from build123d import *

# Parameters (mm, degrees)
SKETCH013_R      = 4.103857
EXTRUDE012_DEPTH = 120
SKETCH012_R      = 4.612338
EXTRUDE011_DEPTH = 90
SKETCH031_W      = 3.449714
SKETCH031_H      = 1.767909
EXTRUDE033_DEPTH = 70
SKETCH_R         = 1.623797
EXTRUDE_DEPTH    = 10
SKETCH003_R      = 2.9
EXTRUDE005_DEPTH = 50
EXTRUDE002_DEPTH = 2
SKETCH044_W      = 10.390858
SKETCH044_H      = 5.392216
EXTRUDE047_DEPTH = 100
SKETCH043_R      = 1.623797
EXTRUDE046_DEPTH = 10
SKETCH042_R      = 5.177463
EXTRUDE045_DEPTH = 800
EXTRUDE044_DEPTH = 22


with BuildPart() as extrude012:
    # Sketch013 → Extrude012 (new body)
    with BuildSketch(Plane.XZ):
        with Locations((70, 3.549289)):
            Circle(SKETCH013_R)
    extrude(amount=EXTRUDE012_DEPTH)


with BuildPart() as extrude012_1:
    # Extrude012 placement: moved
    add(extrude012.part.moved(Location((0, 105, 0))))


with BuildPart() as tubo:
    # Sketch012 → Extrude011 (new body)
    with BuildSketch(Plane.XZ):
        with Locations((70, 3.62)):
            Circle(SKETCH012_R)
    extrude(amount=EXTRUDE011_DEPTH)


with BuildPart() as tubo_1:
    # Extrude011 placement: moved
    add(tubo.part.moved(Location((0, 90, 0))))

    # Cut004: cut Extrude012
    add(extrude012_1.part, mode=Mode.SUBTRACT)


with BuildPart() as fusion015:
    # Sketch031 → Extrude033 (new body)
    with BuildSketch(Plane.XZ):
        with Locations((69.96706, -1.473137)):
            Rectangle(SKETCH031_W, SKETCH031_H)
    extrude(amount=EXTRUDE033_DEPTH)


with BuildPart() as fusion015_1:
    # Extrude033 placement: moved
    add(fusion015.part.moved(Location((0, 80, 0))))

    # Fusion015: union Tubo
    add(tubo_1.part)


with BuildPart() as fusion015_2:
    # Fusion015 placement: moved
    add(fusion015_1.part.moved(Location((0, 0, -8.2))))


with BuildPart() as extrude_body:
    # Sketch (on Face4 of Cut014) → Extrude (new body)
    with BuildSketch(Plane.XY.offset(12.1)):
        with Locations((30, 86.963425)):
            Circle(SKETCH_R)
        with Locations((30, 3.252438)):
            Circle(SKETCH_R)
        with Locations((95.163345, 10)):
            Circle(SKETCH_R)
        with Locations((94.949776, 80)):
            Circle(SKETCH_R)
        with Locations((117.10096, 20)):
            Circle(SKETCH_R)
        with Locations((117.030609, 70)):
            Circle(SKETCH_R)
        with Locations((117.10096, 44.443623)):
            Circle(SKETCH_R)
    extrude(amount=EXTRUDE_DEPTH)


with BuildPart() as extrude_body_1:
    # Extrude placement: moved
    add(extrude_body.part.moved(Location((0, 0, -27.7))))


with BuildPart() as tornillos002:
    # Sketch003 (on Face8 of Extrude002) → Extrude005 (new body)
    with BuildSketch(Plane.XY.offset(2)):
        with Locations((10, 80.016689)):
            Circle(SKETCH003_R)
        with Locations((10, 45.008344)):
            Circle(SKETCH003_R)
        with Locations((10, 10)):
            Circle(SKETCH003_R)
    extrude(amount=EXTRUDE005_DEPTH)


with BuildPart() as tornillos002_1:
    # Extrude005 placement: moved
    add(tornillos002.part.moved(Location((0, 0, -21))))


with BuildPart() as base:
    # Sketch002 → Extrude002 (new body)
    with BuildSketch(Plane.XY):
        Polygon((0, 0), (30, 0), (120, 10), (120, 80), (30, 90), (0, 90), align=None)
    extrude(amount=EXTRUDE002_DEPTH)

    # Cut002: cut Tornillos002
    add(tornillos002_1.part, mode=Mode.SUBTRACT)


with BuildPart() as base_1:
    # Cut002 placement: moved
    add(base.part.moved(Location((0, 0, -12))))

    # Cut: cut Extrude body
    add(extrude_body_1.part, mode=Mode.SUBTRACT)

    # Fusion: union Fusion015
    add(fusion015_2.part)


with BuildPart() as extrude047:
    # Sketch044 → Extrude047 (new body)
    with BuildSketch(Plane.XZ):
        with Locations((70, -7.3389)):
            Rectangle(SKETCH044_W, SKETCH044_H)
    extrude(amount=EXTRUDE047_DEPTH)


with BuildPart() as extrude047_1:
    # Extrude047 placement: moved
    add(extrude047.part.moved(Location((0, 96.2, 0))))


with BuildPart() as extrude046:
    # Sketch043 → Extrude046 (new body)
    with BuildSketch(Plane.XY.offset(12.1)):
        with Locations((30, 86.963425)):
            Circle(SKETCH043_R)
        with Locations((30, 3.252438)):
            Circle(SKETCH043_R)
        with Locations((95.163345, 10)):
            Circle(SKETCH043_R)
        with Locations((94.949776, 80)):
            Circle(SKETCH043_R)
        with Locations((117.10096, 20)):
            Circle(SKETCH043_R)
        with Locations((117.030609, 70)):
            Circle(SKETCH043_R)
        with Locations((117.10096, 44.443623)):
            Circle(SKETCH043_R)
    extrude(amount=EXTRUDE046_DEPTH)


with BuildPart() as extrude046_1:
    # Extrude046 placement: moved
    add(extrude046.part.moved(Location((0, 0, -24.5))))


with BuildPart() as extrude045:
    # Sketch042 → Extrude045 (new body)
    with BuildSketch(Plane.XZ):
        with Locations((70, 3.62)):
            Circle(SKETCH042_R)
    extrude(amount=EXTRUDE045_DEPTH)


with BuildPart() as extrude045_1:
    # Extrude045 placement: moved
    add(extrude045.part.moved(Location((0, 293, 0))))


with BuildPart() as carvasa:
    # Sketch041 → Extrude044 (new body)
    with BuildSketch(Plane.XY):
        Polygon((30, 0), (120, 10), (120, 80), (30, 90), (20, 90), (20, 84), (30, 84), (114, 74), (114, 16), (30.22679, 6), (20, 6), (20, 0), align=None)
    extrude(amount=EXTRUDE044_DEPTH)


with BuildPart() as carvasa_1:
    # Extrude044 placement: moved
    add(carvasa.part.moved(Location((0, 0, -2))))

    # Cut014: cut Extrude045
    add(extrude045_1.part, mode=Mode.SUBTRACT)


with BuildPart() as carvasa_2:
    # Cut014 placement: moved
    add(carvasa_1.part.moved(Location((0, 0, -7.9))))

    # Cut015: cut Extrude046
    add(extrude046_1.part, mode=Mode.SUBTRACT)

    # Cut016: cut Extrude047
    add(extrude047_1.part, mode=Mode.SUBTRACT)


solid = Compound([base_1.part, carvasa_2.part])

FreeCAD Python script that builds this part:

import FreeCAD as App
import Part
import Sketcher
from FreeCAD import Vector
Q = App.Units.Quantity


def add_polygon(sketch, points):
    """Adds a closed chain of lines whose ends are joined by coincident constraints."""
    first, n = sketch.GeometryCount, len(points)
    for a, b in zip(points, points[1:] + points[:1]):
        sketch.addGeometry(Part.LineSegment(App.Vector(*a, 0), App.Vector(*b, 0)), False)
    for i in range(n):
        sketch.addConstraint(Sketcher.Constraint("Coincident", first + i, 2, first + (i + 1) % n, 1))

doc = App.newDocument("Part")
params = doc.addObject("Spreadsheet::Sheet", "Params")
for row, (alias, value) in enumerate([
    ("pad1_length", "120 mm"),
    ("pad2_length", "90 mm"),
    ("pad3_length", "70 mm"),
    ("pad4_length", "10 mm"),
    ("sketch5_diameter", "5.8 mm"),
    ("pad5_length", "50 mm"),
    ("sketch6_width", "30 mm"),
    ("sketch6_height", "70 mm"),
    ("sketch6_height2", "90 mm"),
    ("pad6_length", "2 mm"),
    ("pad7_length", "100 mm"),
    ("pad8_length", "10 mm"),
    ("pad9_length", "800 mm"),
    ("sketch10_width", "10 mm"),
    ("sketch10_height", "70 mm"),
    ("sketch10_height2", "6 mm"),
    ("sketch10_height3", "58 mm"),
    ("pad10_length", "22 mm"),
], start=1):
    params.set(f"A{row}", alias)
    params.set(f"B{row}", "=" + value)
    params.setAlias(f"B{row}", alias)

body = doc.addObject("PartDesign::Body", "Body")

# Sketch on XZ plane
sketch1 = body.newObject("Sketcher::SketchObject", "Sketch")
sketch1.AttachmentSupport = (doc.getObject("XZ_Plane"), [""])
sketch1.MapMode = "FlatFace"
sketch1.addGeometry(Part.Circle(Vector(70, 3.549289, 0), Vector(0, 0, 1), 4.103857), False)
sketch1.addConstraint([
    Sketcher.Constraint("DistanceX", -1, 1, 0, 3, Q("70 mm")),
    Sketcher.Constraint("Diameter", 0, Q("8.207714 mm")),
    Sketcher.Constraint("DistanceY", -1, 1, 0, 3, Q("3.549289 mm")),
])
pad1 = body.newObject("PartDesign::Pad", "Pad")
pad1.Profile = sketch1
pad1.setExpression("Length", "Params.pad1_length")
body2 = doc.addObject("PartDesign::Body", "Body001")
doc.recompute()

body.Placement = App.Placement(Vector(0, 105, 0), App.Rotation(Vector(0, 0, 1), 0))
boolean = body2.newObject("PartDesign::Boolean", "Boolean")
boolean.Type = "Fuse"
boolean.addObjects([body])
body3 = doc.addObject("PartDesign::Body", "Body002")

# Sketch on XZ plane
sketch2 = body3.newObject("Sketcher::SketchObject", "Sketch001")
sketch2.AttachmentSupport = (doc.getObject("XZ_Plane002"), [""])
sketch2.MapMode = "FlatFace"
sketch2.addGeometry(Part.Circle(Vector(70, 3.62, 0), Vector(0, 0, 1), 4.612338), False)
sketch2.addConstraint([
    Sketcher.Constraint("DistanceX", -1, 1, 0, 3, Q("70 mm")),
    Sketcher.Constraint("DistanceY", -1, 1, 0, 3, Q("3.62 mm")),
    Sketcher.Constraint("Diameter", 0, Q("9.224676 mm")),
])
pad2 = body3.newObject("PartDesign::Pad", "Pad001")
pad2.Profile = sketch2
pad2.setExpression("Length", "Params.pad2_length")
body4 = doc.addObject("PartDesign::Body", "Body003")
doc.recompute()

body3.Placement = App.Placement(Vector(0, 90, 0), App.Rotation(Vector(0, 0, 1), 0))
boolean2 = body4.newObject("PartDesign::Boolean", "Boolean001")
boolean2.Type = "Fuse"
boolean2.addObjects([body3])
doc.recompute()

boolean3 = body4.newObject("PartDesign::Boolean", "Boolean002")
boolean3.Type = "Cut"
boolean3.addObjects([body2])
body5 = doc.addObject("PartDesign::Body", "Body004")

# Sketch on XZ plane
sketch3 = body5.newObject("Sketcher::SketchObject", "Sketch002")
sketch3.AttachmentSupport = (doc.getObject("XZ_Plane004"), [""])
sketch3.MapMode = "FlatFace"
add_polygon(sketch3, [(68.242203, -0.589183), (68.242203, -2.357092), (71.691917, -2.357092), (71.691917, -0.589183)])  # lines 0-3
sketch3.addConstraint([
    Sketcher.Constraint("Vertical", 0),
    Sketcher.Constraint("Horizontal", 1),
    Sketcher.Constraint("Vertical", 2),
    Sketcher.Constraint("Horizontal", 3),
    Sketcher.Constraint("DistanceY", 0, 2, 0, 1, Q("1.767909 mm")),
    Sketcher.Constraint("DistanceX", 1, 1, 1, 2, Q("3.449714 mm")),
    Sketcher.Constraint("DistanceY", 0, 2, -1, 1, Q("2.357092 mm")),
    Sketcher.Constraint("DistanceX", -1, 1, 0, 2, Q("68.242203 mm")),
])
pad3 = body5.newObject("PartDesign::Pad", "Pad002")
pad3.Profile = sketch3
pad3.setExpression("Length", "Params.pad3_length")
body6 = doc.addObject("PartDesign::Body", "Body005")
doc.recompute()

body5.Placement = App.Placement(Vector(0, 80, 0), App.Rotation(Vector(0, 0, 1), 0))
boolean4 = body6.newObject("PartDesign::Boolean", "Boolean003")
boolean4.Type = "Fuse"
boolean4.addObjects([body5])
doc.recompute()

boolean5 = body6.newObject("PartDesign::Boolean", "Boolean004")
boolean5.Type = "Fuse"
boolean5.addObjects([body4])
body7 = doc.addObject("PartDesign::Body", "Body006")
doc.recompute()

body6.Placement = App.Placement(Vector(0, 0, -8.2), App.Rotation(Vector(0, 0, 1), 0))
boolean6 = body7.newObject("PartDesign::Boolean", "Boolean005")
boolean6.Type = "Fuse"
boolean6.addObjects([body6])
body8 = doc.addObject("PartDesign::Body", "Body007")
body8.AllowCompound = True

# Sketch on XY plane
sketch4 = body8.newObject("Sketcher::SketchObject", "Sketch003")
sketch4.AttachmentSupport = (doc.getObject("XY_Plane007"), [""])
sketch4.MapMode = "FlatFace"
sketch4.AttachmentOffset = App.Placement(Vector(0, 0, 12.1), App.Rotation())
sketch4.addGeometry([
    Part.Circle(Vector(30, 86.963425, 0), Vector(0, 0, 1), 1.623797),  # 0
    Part.Circle(Vector(30, 3.252438, 0), Vector(0, 0, 1), 1.623797),  # 1
    Part.Circle(Vector(95.163345, 10, 0), Vector(0, 0, 1), 1.623797),  # 2
    Part.Circle(Vector(94.949776, 80, 0), Vector(0, 0, 1), 1.623797),  # 3
    Part.Circle(Vector(117.10096, 20, 0), Vector(0, 0, 1), 1.623797),  # 4
    Part.Circle(Vector(117.030609, 70, 0), Vector(0, 0, 1), 1.623797),  # 5
    Part.Circle(Vector(117.10096, 44.443623, 0), Vector(0, 0, 1), 1.623797),  # 6
], False)
sketch4.addConstraint([
    Sketcher.Constraint("Equal", 0, 1),
    Sketcher.Constraint("Equal", 1, 2),
    Sketcher.Constraint("Equal", 2, 3),
    Sketcher.Constraint("Equal", 3, 4),
    Sketcher.Constraint("Equal", 4, 5),
    Sketcher.Constraint("Equal", 5, 6),
    Sketcher.Constraint("Vertical", 0, 3, 1, 3),
    Sketcher.Constraint("Vertical", 4, 3, 6, 3),
    Sketcher.Constraint("DistanceX", -1, 1, 0, 3, Q("30 mm")),
    Sketcher.Constraint("DistanceY", -1, 1, 2, 3, Q("10 mm")),
    Sketcher.Constraint("DistanceY", -1, 1, 3, 3, Q("80 mm")),
    Sketcher.Constraint("DistanceY", -1, 1, 4, 3, Q("20 mm")),
    Sketcher.Constraint("DistanceY", -1, 1, 5, 3, Q("70 mm")),
    Sketcher.Constraint("Diameter", 0, Q("3.247594 mm")),
    Sketcher.Constraint("DistanceY", -1, 1, 1, 3, Q("3.252438 mm")),
    Sketcher.Constraint("DistanceX", -1, 1, 4, 3, Q("117.10096 mm")),
    Sketcher.Constraint("DistanceX", -1, 1, 5, 3, Q("117.030609 mm")),
    Sketcher.Constraint("DistanceX", 3, 3, 2, 3, Q("0.213569 mm")),
    Sketcher.Constraint("DistanceY", -1, 1, 0, 3, Q("86.963425 mm")),
    Sketcher.Constraint("DistanceX", -1, 1, 2, 3, Q("95.163345 mm")),
    Sketcher.Constraint("DistanceY", -1, 1, 6, 3, Q("44.443623 mm")),
])
pad4 = body8.newObject("PartDesign::Pad", "Pad003")
pad4.Profile = sketch4
pad4.setExpression("Length", "Params.pad4_length")
body9 = doc.addObject("PartDesign::Body", "Body008")
body9.AllowCompound = True
doc.recompute()

body8.Placement = App.Placement(Vector(0, 0, -27.7), App.Rotation(Vector(0, 0, 1), 0))
boolean7 = body9.newObject("PartDesign::Boolean", "Boolean006")
boolean7.Type = "Fuse"
boolean7.addObjects([body8])
body10 = doc.addObject("PartDesign::Body", "Body009")
body10.AllowCompound = True

# Sketch on XY plane
sketch5 = body10.newObject("Sketcher::SketchObject", "Sketch004")
sketch5.AttachmentSupport = (doc.getObject("XY_Plane009"), [""])
sketch5.MapMode = "FlatFace"
sketch5.AttachmentOffset = App.Placement(Vector(0, 0, 2), App.Rotation())
sketch5.addGeometry([
    Part.Circle(Vector(10, 80.016689, 0), Vector(0, 0, 1), 2.9),
    Part.Circle(Vector(10, 45.008344, 0), Vector(0, 0, 1), 2.9),
    Part.Circle(Vector(10, 10, 0), Vector(0, 0, 1), 2.9),
], False)
sketch5.addConstraint([
    Sketcher.Constraint("Equal", 0, 1),
    Sketcher.Constraint("Equal", 1, 2),
    Sketcher.Constraint("Vertical", 0, 3, 1, 3),
    Sketcher.Constraint("Vertical", 1, 3, 2, 3),
    Sketcher.Constraint("Diameter", 0, Q("5.8 mm")),
    Sketcher.Constraint("DistanceX", -1, 1, 0, 3, Q("10 mm")),
    Sketcher.Constraint("DistanceY", -1, 1, 2, 3, Q("10 mm")),
    Sketcher.Constraint("DistanceY", -1, 1, 0, 3, Q("80.016689 mm")),
    Sketcher.Constraint("DistanceY", -1, 1, 1, 3, Q("45.008344 mm")),
])
sketch5.setExpression("Constraints[4]", "Params.sketch5_diameter")
pad5 = body10.newObject("PartDesign::Pad", "Pad004")
pad5.Profile = sketch5
pad5.setExpression("Length", "Params.pad5_length")
body11 = doc.addObject("PartDesign::Body", "Body010")
body11.AllowCompound = True
doc.recompute()

body10.Placement = App.Placement(Vector(0, 0, -21), App.Rotation(Vector(0, 0, 1), 0))
boolean8 = body11.newObject("PartDesign::Boolean", "Boolean007")
boolean8.Type = "Fuse"
boolean8.addObjects([body10])
body12 = doc.addObject("PartDesign::Body", "Body011")

# Sketch on XY plane
sketch6 = body12.newObject("Sketcher::SketchObject", "Sketch005")
sketch6.AttachmentSupport = (doc.getObject("XY_Plane011"), [""])
sketch6.MapMode = "FlatFace"
add_polygon(sketch6, [(0, 0), (30, 0), (120, 10), (120, 80), (30, 90), (0, 90)])  # lines 0-5
sketch6.addConstraint([
    Sketcher.Constraint("Horizontal", 0),
    Sketcher.Constraint("Vertical", 2),
    Sketcher.Constraint("Horizontal", 4),
    Sketcher.Constraint("Vertical", 5),
    Sketcher.Constraint("Coincident", 5, 2, -1, 1),
    Sketcher.Constraint("Vertical", 0, 2, 3, 2),
    Sketcher.Constraint("Equal", 1, 3),
    Sketcher.Constraint("DistanceX", 0, 1, 0, 2, Q("30 mm")),
    Sketcher.Constraint("DistanceY", 2, 1, 2, 2, Q("70 mm")),
    Sketcher.Constraint("DistanceY", 5, 2, 5, 1, Q("90 mm")),
    Sketcher.Constraint("DistanceX", -1, 1, 1, 2, Q("120 mm")),
])
sketch6.setExpression("Constraints[13]", "Params.sketch6_width")
sketch6.setExpression("Constraints[14]", "Params.sketch6_height")
sketch6.setExpression("Constraints[15]", "Params.sketch6_height2")
pad6 = body12.newObject("PartDesign::Pad", "Pad005")
pad6.Profile = sketch6
pad6.setExpression("Length", "Params.pad6_length")
doc.recompute()

boolean9 = body12.newObject("PartDesign::Boolean", "Boolean008")
boolean9.Type = "Cut"
boolean9.addObjects([body11])
body13 = doc.addObject("PartDesign::Body", "Body012")
doc.recompute()

body12.Placement = App.Placement(Vector(0, 0, -12), App.Rotation(Vector(0, 0, 1), 0))
boolean10 = body13.newObject("PartDesign::Boolean", "Boolean009")
boolean10.Type = "Fuse"
boolean10.addObjects([body12])
doc.recompute()

boolean11 = body13.newObject("PartDesign::Boolean", "Boolean010")
boolean11.Type = "Cut"
boolean11.addObjects([body9])
doc.recompute()

boolean12 = body13.newObject("PartDesign::Boolean", "Boolean011")
boolean12.Type = "Fuse"
boolean12.addObjects([body7])
body14 = doc.addObject("PartDesign::Body", "Body013")

# Sketch on XZ plane
sketch7 = body14.newObject("Sketcher::SketchObject", "Sketch006")
sketch7.AttachmentSupport = (doc.getObject("XZ_Plane013"), [""])
sketch7.MapMode = "FlatFace"
add_polygon(sketch7, [(64.804571, -4.642792), (64.804571, -10.035008), (75.195429, -10.035008), (75.195429, -4.642792)])  # lines 0-3
sketch7.addConstraint([
    Sketcher.Constraint("Vertical", 0),
    Sketcher.Constraint("Horizontal", 1),
    Sketcher.Constraint("Vertical", 2),
    Sketcher.Constraint("Horizontal", 3),
    Sketcher.Constraint("DistanceX", 1, 1, 1, 2, Q("10.390858 mm")),
    Sketcher.Constraint("DistanceY", 0, 2, 0, 1, Q("5.392216 mm")),
    Sketcher.Constraint("DistanceX", -1, 1, 0, 2, Q("64.804571 mm")),
    Sketcher.Constraint("DistanceY", 0, 2, -1, 1, Q("10.035008 mm")),
])
pad7 = body14.newObject("PartDesign::Pad", "Pad006")
pad7.Profile = sketch7
pad7.setExpression("Length", "Params.pad7_length")
body15 = doc.addObject("PartDesign::Body", "Body014")
doc.recompute()

body14.Placement = App.Placement(Vector(0, 96.2, 0), App.Rotation(Vector(0, 0, 1), 0))
boolean13 = body15.newObject("PartDesign::Boolean", "Boolean012")
boolean13.Type = "Fuse"
boolean13.addObjects([body14])
body16 = doc.addObject("PartDesign::Body", "Body015")
body16.AllowCompound = True

# Sketch on XY plane
sketch8 = body16.newObject("Sketcher::SketchObject", "Sketch007")
sketch8.AttachmentSupport = (doc.getObject("XY_Plane015"), [""])
sketch8.MapMode = "FlatFace"
sketch8.AttachmentOffset = App.Placement(Vector(0, 0, 12.1), App.Rotation())
sketch8.addGeometry([
    Part.Circle(Vector(30, 86.963425, 0), Vector(0, 0, 1), 1.623797),  # 0
    Part.Circle(Vector(30, 3.252438, 0), Vector(0, 0, 1), 1.623797),  # 1
    Part.Circle(Vector(95.163345, 10, 0), Vector(0, 0, 1), 1.623797),  # 2
    Part.Circle(Vector(94.949776, 80, 0), Vector(0, 0, 1), 1.623797),  # 3
    Part.Circle(Vector(117.10096, 20, 0), Vector(0, 0, 1), 1.623797),  # 4
    Part.Circle(Vector(117.030609, 70, 0), Vector(0, 0, 1), 1.623797),  # 5
    Part.Circle(Vector(117.10096, 44.443623, 0), Vector(0, 0, 1), 1.623797),  # 6
], False)
sketch8.addConstraint([
    Sketcher.Constraint("Equal", 0, 1),
    Sketcher.Constraint("Equal", 1, 2),
    Sketcher.Constraint("Equal", 2, 3),
    Sketcher.Constraint("Equal", 3, 4),
    Sketcher.Constraint("Equal", 4, 5),
    Sketcher.Constraint("Equal", 5, 6),
    Sketcher.Constraint("Vertical", 0, 3, 1, 3),
    Sketcher.Constraint("Vertical", 4, 3, 6, 3),
    Sketcher.Constraint("DistanceX", -1, 1, 0, 3, Q("30 mm")),
    Sketcher.Constraint("DistanceY", -1, 1, 2, 3, Q("10 mm")),
    Sketcher.Constraint("DistanceY", -1, 1, 3, 3, Q("80 mm")),
    Sketcher.Constraint("DistanceY", -1, 1, 4, 3, Q("20 mm")),
    Sketcher.Constraint("DistanceY", -1, 1, 5, 3, Q("70 mm")),
    Sketcher.Constraint("Diameter", 0, Q("3.247594 mm")),
    Sketcher.Constraint("DistanceY", -1, 1, 1, 3, Q("3.252438 mm")),
    Sketcher.Constraint("DistanceX", -1, 1, 4, 3, Q("117.10096 mm")),
    Sketcher.Constraint("DistanceX", -1, 1, 5, 3, Q("117.030609 mm")),
    Sketcher.Constraint("DistanceX", 3, 3, 2, 3, Q("0.213569 mm")),
    Sketcher.Constraint("DistanceY", -1, 1, 0, 3, Q("86.963425 mm")),
    Sketcher.Constraint("DistanceX", -1, 1, 2, 3, Q("95.163345 mm")),
    Sketcher.Constraint("DistanceY", -1, 1, 6, 3, Q("44.443623 mm")),
])
pad8 = body16.newObject("PartDesign::Pad", "Pad007")
pad8.Profile = sketch8
pad8.setExpression("Length", "Params.pad8_length")
body17 = doc.addObject("PartDesign::Body", "Body016")
body17.AllowCompound = True
doc.recompute()

body16.Placement = App.Placement(Vector(0, 0, -24.5), App.Rotation(Vector(0, 0, 1), 0))
boolean14 = body17.newObject("PartDesign::Boolean", "Boolean013")
boolean14.Type = "Fuse"
boolean14.addObjects([body16])
body18 = doc.addObject("PartDesign::Body", "Body017")

# Sketch on XZ plane
sketch9 = body18.newObject("Sketcher::SketchObject", "Sketch008")
sketch9.AttachmentSupport = (doc.getObject("XZ_Plane017"), [""])
sketch9.MapMode = "FlatFace"
sketch9.addGeometry(Part.Circle(Vector(70, 3.62, 0), Vector(0, 0, 1), 5.177463), False)
sketch9.addConstraint([
    Sketcher.Constraint("DistanceX", -1, 1, 0, 3, Q("70 mm")),
    Sketcher.Constraint("DistanceY", -1, 1, 0, 3, Q("3.62 mm")),
    Sketcher.Constraint("Diameter", 0, Q("10.354926 mm")),
])
pad9 = body18.newObject("PartDesign::Pad", "Pad008")
pad9.Profile = sketch9
pad9.setExpression("Length", "Params.pad9_length")
body19 = doc.addObject("PartDesign::Body", "Body018")
doc.recompute()

body18.Placement = App.Placement(Vector(0, 293, 0), App.Rotation(Vector(0, 0, 1), 0))
boolean15 = body19.newObject("PartDesign::Boolean", "Boolean014")
boolean15.Type = "Fuse"
boolean15.addObjects([body18])
body20 = doc.addObject("PartDesign::Body", "Body019")

# Sketch on XY plane
sketch10 = body20.newObject("Sketcher::SketchObject", "Sketch009")
sketch10.AttachmentSupport = (doc.getObject("XY_Plane019"), [""])
sketch10.MapMode = "FlatFace"
add_polygon(sketch10, [(30, 0), (120, 10), (120, 80), (30, 90), (20, 90), (20, 84), (30, 84), (114, 74), (114, 16), (30.22679, 6), (20, 6), (20, 0)])  # lines 0-11
sketch10.addConstraint([
    Sketcher.Constraint("Vertical", 1),
    Sketcher.Constraint("Horizontal", 3),
    Sketcher.Constraint("Vertical", 4),
    Sketcher.Constraint("Horizontal", 5),
    Sketcher.Constraint("Vertical", 7),
    Sketcher.Constraint("Horizontal", 9),
    Sketcher.Constraint("Vertical", 10),
    Sketcher.Constraint("Horizontal", 11),
    Sketcher.Constraint("PointOnObject", 10, 2, -1),
    Sketcher.Constraint("Vertical", 2, 2, 5, 2),
    Sketcher.Constraint("Vertical", 4, 2, 9, 2),
    Sketcher.Constraint("Vertical", 5, 2, 11, 2),
    Sketcher.Constraint("Equal", 4, 10),
    Sketcher.Constraint("Equal", 0, 2),
    Sketcher.Constraint("DistanceX", 3, 2, 3, 1, Q("10 mm")),
    Sketcher.Constraint("DistanceY", 1, 1, 1, 2, Q("70 mm")),
    Sketcher.Constraint("DistanceY", 4, 2, 4, 1, Q("6 mm")),
    Sketcher.Constraint("DistanceY", 7, 2, 7, 1, Q("58 mm")),
    Sketcher.Constraint("DistanceX", -1, 1, 0, 2, Q("120 mm")),
    Sketcher.Constraint("DistanceY", -1, 1, 0, 2, Q("10 mm")),
    Sketcher.Constraint("DistanceX", -1, 1, 2, 2, Q("30 mm")),
    Sketcher.Constraint("DistanceX", -1, 1, 6, 2, Q("114 mm")),
    Sketcher.Constraint("DistanceY", -1, 1, 6, 2, Q("74 mm")),
    Sketcher.Constraint("DistanceX", 9, 2, 9, 1, Q("10.22679 mm")),
])
sketch10.setExpression("Constraints[26]", "Params.sketch10_width")
sketch10.setExpression("Constraints[27]", "Params.sketch10_height")
sketch10.setExpression("Constraints[28]", "Params.sketch10_height2")
sketch10.setExpression("Constraints[29]", "Params.sketch10_height3")
pad10 = body20.newObject("PartDesign::Pad", "Pad009")
pad10.Profile = sketch10
pad10.setExpression("Length", "Params.pad10_length")
body21 = doc.addObject("PartDesign::Body", "Body020")
doc.recompute()

body20.Placement = App.Placement(Vector(0, 0, -2), App.Rotation(Vector(0, 0, 1), 0))
boolean16 = body21.newObject("PartDesign::Boolean", "Boolean015")
boolean16.Type = "Fuse"
boolean16.addObjects([body20])
doc.recompute()

boolean17 = body21.newObject("PartDesign::Boolean", "Boolean016")
boolean17.Type = "Cut"
boolean17.addObjects([body19])
body22 = doc.addObject("PartDesign::Body", "Body021")
doc.recompute()

body21.Placement = App.Placement(Vector(0, 0, -7.9), App.Rotation(Vector(0, 0, 1), 0))
boolean18 = body22.newObject("PartDesign::Boolean", "Boolean017")
boolean18.Type = "Fuse"
boolean18.addObjects([body21])
doc.recompute()

boolean19 = body22.newObject("PartDesign::Boolean", "Boolean018")
boolean19.Type = "Cut"
boolean19.addObjects([body17])
doc.recompute()

boolean20 = body22.newObject("PartDesign::Boolean", "Boolean019")
boolean20.Type = "Cut"
boolean20.addObjects([body15])

doc.recompute()
